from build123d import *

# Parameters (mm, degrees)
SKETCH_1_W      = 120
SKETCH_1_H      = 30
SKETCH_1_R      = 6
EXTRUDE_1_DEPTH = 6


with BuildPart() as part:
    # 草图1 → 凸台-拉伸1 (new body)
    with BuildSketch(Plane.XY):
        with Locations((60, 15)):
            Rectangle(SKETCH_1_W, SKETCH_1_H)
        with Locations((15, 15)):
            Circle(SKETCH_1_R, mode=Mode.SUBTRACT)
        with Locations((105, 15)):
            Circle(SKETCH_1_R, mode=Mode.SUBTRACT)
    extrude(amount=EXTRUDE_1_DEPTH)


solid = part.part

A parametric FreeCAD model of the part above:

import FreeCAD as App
import Part
import Sketcher
from FreeCAD import Vector


def add_polygon(sketch, points):
    """Adds a closed chain of lines whose ends are joined by coincident constraints."""
    first, n = sketch.GeometryCount, len(points)
    for a, b in zip(points, points[1:] + points[:1]):
        sketch.addGeometry(Part.LineSegment(App.Vector(*a, 0), App.Vector(*b, 0)), False)
    for i in range(n):
        sketch.addConstraint(Sketcher.Constraint("Coincident", first + i, 2, first + (i + 1) % n, 1))

doc = App.newDocument("Part")
body = doc.addObject("PartDesign::Body", "Body")

# Sketch on XY plane
sketch1 = body.newObject("Sketcher::SketchObject", "Sketch")
sketch1.AttachmentSupport = (doc.getObject("XY_Plane"), [""])
sketch1.MapMode = "FlatFace"
add_polygon(sketch1, [(0, 30), (0, 0), (120, 0), (120, 30)])  # lines 0-3
sketch1.addGeometry(Part.Circle(Vector(15, 15, 0), Vector(0, 0, 1), 6), False)  # 4
sketch1.addGeometry(Part.Circle(Vector(105, 15, 0), Vector(0, 0, 1), 6), False)  # 5
sketch1.addConstraint([
    Sketcher.Constraint("Vertical", 0),
    Sketcher.Constraint("Horizontal", 1),
    Sketcher.Constraint("Vertical", 2),
    Sketcher.Constraint("Horizontal", 3),
    Sketcher.Constraint("Coincident", 0, 2, -1, 1),
    Sketcher.Constraint("Equal", 4, 5),
    Sketcher.Constraint("Horizontal", 4, 3, 5, 3),
    Sketcher.Constraint("Diameter", 4, 12.0),
    Sketcher.Constraint("DistanceX", 1, 1, 1, 2, 120.0),
    Sketcher.Constraint("DistanceY", 0, 2, 0, 1, 30.0),
    Sketcher.Constraint("DistanceX", -1, 1, 4, 3, 15.0),
    Sketcher.Constraint("DistanceY", -1, 1, 4, 3, 15.0),
    Sketcher.Constraint("DistanceX", -1, 1, 5, 3, 105.0),
])
pad1 = body.newObject("PartDesign::Pad", "Pad")
pad1.Profile = sketch1
pad1.Length = 6

doc.recompute()
